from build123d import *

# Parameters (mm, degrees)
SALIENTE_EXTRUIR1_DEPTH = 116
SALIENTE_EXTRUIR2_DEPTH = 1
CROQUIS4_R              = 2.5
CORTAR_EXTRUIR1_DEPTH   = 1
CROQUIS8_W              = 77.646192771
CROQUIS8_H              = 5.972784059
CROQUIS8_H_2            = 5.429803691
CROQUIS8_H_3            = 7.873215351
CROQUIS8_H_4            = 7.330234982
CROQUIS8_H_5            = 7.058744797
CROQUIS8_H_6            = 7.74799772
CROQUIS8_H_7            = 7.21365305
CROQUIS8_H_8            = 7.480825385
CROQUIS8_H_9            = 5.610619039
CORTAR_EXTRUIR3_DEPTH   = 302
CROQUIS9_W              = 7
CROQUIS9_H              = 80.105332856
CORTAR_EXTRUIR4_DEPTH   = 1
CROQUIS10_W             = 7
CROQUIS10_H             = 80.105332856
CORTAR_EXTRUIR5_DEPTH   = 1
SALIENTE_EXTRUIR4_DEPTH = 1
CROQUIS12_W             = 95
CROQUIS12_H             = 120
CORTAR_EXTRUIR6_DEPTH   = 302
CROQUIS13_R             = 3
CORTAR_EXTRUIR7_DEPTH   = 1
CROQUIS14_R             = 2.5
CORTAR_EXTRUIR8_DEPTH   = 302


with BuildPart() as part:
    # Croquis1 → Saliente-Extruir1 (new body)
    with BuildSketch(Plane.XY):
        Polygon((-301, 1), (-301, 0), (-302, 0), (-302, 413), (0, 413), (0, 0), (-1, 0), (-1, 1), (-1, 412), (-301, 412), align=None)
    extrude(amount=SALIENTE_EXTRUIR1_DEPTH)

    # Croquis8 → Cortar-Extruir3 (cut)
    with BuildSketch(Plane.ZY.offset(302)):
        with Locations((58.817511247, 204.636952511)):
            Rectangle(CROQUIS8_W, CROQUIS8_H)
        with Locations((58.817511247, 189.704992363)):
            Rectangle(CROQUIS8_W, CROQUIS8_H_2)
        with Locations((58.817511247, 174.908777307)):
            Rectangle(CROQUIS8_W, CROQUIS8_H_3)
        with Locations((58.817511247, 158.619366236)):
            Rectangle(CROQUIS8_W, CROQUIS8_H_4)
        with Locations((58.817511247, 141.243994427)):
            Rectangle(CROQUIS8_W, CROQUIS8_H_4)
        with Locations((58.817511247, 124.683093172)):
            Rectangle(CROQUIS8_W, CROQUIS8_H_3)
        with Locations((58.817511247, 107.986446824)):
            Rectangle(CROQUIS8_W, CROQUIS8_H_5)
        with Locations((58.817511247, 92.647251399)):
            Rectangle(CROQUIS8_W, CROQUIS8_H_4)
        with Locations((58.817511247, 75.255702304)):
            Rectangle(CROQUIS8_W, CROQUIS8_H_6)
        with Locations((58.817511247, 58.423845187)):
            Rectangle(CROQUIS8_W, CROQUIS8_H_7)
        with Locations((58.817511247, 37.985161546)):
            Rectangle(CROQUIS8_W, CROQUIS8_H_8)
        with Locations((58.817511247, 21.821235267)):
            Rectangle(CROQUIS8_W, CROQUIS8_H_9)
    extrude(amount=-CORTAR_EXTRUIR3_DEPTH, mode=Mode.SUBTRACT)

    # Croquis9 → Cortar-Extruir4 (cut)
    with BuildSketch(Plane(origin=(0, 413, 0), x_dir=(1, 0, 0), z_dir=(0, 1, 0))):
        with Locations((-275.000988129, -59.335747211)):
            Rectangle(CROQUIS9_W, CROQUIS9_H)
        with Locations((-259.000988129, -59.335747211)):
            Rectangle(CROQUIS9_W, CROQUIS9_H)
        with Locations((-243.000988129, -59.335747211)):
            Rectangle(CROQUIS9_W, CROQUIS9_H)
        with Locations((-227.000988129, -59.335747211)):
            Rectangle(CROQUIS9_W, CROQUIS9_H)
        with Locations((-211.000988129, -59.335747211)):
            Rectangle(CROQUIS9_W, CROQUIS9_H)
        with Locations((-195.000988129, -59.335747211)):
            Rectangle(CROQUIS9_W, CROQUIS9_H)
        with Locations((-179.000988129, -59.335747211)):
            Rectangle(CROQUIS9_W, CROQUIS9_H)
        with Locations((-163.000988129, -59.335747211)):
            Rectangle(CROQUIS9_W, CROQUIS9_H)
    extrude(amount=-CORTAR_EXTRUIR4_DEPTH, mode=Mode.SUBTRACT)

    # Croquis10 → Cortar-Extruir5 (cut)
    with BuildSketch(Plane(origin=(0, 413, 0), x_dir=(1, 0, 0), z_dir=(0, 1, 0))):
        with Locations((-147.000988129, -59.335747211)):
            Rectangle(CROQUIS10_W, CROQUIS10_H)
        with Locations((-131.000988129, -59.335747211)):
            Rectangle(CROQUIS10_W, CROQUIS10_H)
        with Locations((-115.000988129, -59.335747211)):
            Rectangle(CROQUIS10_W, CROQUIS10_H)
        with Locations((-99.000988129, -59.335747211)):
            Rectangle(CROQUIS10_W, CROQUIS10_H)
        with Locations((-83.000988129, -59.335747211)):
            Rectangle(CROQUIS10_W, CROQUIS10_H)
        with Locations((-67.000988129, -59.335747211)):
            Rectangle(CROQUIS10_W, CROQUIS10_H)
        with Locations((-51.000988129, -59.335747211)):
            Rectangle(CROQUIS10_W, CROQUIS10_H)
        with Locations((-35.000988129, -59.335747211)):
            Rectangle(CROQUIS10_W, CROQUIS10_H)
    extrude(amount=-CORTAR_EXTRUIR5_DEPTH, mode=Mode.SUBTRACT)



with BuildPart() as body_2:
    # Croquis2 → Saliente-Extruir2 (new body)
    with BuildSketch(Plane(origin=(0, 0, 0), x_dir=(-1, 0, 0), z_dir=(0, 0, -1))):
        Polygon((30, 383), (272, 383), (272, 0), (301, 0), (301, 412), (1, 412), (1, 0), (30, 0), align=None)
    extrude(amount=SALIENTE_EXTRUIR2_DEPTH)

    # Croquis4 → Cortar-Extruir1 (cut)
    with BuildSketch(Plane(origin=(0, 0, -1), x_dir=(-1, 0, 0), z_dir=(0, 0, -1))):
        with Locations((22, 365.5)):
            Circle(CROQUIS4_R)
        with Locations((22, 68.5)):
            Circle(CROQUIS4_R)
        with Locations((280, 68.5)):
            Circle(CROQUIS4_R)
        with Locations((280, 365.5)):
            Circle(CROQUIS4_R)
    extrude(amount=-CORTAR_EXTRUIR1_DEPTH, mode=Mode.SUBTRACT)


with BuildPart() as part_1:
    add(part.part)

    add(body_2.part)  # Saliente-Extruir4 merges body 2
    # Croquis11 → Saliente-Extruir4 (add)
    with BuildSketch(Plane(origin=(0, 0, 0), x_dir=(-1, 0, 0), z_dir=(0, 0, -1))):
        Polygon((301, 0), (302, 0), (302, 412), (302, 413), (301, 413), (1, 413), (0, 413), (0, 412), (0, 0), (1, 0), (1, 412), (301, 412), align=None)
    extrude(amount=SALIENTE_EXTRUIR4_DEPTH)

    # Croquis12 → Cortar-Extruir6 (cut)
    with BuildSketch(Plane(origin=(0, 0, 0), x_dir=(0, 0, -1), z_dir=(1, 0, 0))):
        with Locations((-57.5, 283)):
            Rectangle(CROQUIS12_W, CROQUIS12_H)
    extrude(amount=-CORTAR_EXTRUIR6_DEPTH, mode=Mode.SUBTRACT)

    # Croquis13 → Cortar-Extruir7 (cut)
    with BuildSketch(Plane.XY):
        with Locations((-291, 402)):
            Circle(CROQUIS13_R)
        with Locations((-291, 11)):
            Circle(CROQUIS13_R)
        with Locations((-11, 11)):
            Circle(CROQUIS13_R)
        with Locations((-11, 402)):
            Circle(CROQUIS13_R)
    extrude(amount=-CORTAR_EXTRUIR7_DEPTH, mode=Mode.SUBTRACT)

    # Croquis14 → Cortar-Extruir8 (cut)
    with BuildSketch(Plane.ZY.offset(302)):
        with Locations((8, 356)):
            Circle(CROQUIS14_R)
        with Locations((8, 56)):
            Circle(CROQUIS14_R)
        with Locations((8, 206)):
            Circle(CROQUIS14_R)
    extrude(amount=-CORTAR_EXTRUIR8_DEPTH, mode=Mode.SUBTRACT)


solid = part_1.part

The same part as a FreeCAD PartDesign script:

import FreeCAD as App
import Part
import Sketcher
from FreeCAD import Vector

doc = App.newDocument("Part")
body = doc.addObject("PartDesign::Body", "Body")

# Sketch on XY plane
sketch1 = doc.addObject("Sketcher::SketchObject", "Sketch")
body.addObject(sketch1)
sketch1.AttachmentSupport = (doc.XY_Plane, [""])
sketch1.MapMode = "FlatFace"
sketch1.addGeometry([
    Part.LineSegment(Vector(-301, 0, 0), Vector(-301, 412, 0)),  # 0
    Part.LineSegment(Vector(-301, 412, 0), Vector(-1, 412, 0)),  # 1
    Part.LineSegment(Vector(-1, 412, 0), Vector(-1, 0, 0)),  # 2
    Part.LineSegment(Vector(-1, 0, 0), Vector(0, 0, 0)),  # 3
    Part.LineSegment(Vector(0, 0, 0), Vector(0, 413, 0)),  # 4
    Part.LineSegment(Vector(0, 413, 0), Vector(-302, 413, 0)),  # 5
    Part.LineSegment(Vector(-302, 413, 0), Vector(-302, 0, 0)),  # 6
    Part.LineSegment(Vector(-302, 0, 0), Vector(-301, 0, 0)),  # 7
], False)
sketch1.addConstraint([
    Sketcher.Constraint("Coincident", 0, 2, 1, 1),
    Sketcher.Constraint("Coincident", 1, 2, 2, 1),
    Sketcher.Constraint("Coincident", 2, 2, 3, 1),
    Sketcher.Constraint("Coincident", 3, 2, 4, 1),
    Sketcher.Constraint("Coincident", 4, 2, 5, 1),
    Sketcher.Constraint("Coincident", 5, 2, 6, 1),
    Sketcher.Constraint("Coincident", 6, 2, 7, 1),
    Sketcher.Constraint("Coincident", 7, 2, 0, 1),
    Sketcher.Constraint("Vertical", 0),
    Sketcher.Constraint("Horizontal", 1),
    Sketcher.Constraint("Vertical", 2),
    Sketcher.Constraint("Horizontal", 3),
    Sketcher.Constraint("Vertical", 4),
    Sketcher.Constraint("Horizontal", 5),
    Sketcher.Constraint("Vertical", 6),
    Sketcher.Constraint("Horizontal", 7),
    Sketcher.Constraint("Coincident", 3, 2, -1, 1),
    Sketcher.Constraint("PointOnObject", 6, 2, -1),
    Sketcher.Constraint("Equal", 3, 7),
    Sketcher.Constraint("DistanceX", 1, 1, 1, 2, 300.0),
    Sketcher.Constraint("DistanceX", 3, 1, 3, 2, 1.0),
    Sketcher.Constraint("DistanceY", 0, 1, 0, 2, 412.0),
    Sketcher.Constraint("DistanceY", 4, 1, 4, 2, 413.0),
])
pad1 = doc.addObject("PartDesign::Pad", "Pad")
body.addObject(pad1)
pad1.Profile = sketch1
pad1.Length = 116

# Sketch on YZ plane
sketch2 = doc.addObject("Sketcher::SketchObject", "Sketch001")
body.addObject(sketch2)
sketch2.AttachmentSupport = (doc.YZ_Plane, [""])
sketch2.MapMode = "FlatFace"
sketch2.AttachmentOffset = App.Placement(Vector(0, 0, -302), App.Rotation())
sketch2.addGeometry([
    Part.LineSegment(Vector(207.623345, 19.994415, 0), Vector(201.65056, 19.994415, 0)),  # 0
    Part.LineSegment(Vector(201.65056, 19.994415, 0), Vector(201.65056, 97.640608, 0)),  # 1
    Part.LineSegment(Vector(201.65056, 97.640608, 0), Vector(207.623345, 97.640608, 0)),  # 2
    Part.LineSegment(Vector(207.623345, 97.640608, 0), Vector(207.623345, 19.994415, 0)),  # 3
    Part.LineSegment(Vector(192.419894, 19.994415, 0), Vector(186.990091, 19.994415, 0)),  # 4
    Part.LineSegment(Vector(186.990091, 19.994415, 0), Vector(186.990091, 97.640608, 0)),  # 5
    Part.LineSegment(Vector(186.990091, 97.640608, 0), Vector(192.419894, 97.640608, 0)),  # 6
    Part.LineSegment(Vector(192.419894, 97.640608, 0), Vector(192.419894, 19.994415, 0)),  # 7
    Part.LineSegment(Vector(178.845385, 19.994415, 0), Vector(170.97217, 19.994415, 0)),  # 8
    Part.LineSegment(Vector(170.97217, 19.994415, 0), Vector(170.97217, 97.640608, 0)),  # 9
    Part.LineSegment(Vector(170.97217, 97.640608, 0), Vector(178.845385, 97.640608, 0)),  # 10
    Part.LineSegment(Vector(178.845385, 97.640608, 0), Vector(178.845385, 19.994415, 0)),  # 11
    Part.LineSegment(Vector(162.284484, 19.994415, 0), Vector(154.954249, 19.994415, 0)),  # 12
    Part.LineSegment(Vector(154.954249, 19.994415, 0), Vector(154.954249, 97.640608, 0)),  # 13
    Part.LineSegment(Vector(154.954249, 97.640608, 0), Vector(162.284484, 97.640608, 0)),  # 14
    Part.LineSegment(Vector(162.284484, 97.640608, 0), Vector(162.284484, 19.994415, 0)),  # 15
    Part.LineSegment(Vector(144.909112, 19.994415, 0), Vector(137.578877, 19.994415, 0)),  # 16
    Part.LineSegment(Vector(137.578877, 19.994415, 0), Vector(137.578877, 97.640608, 0)),  # 17
    Part.LineSegment(Vector(137.578877, 97.640608, 0), Vector(144.909112, 97.640608, 0)),  # 18
    Part.LineSegment(Vector(144.909112, 97.640608, 0), Vector(144.909112, 19.994415, 0)),  # 19
    Part.LineSegment(Vector(128.619701, 19.994415, 0), Vector(120.746485, 19.994415, 0)),  # 20
    Part.LineSegment(Vector(120.746485, 19.994415, 0), Vector(120.746485, 97.640608, 0)),  # 21
    Part.LineSegment(Vector(120.746485, 97.640608, 0), Vector(128.619701, 97.640608, 0)),  # 22
    Part.LineSegment(Vector(128.619701, 97.640608, 0), Vector(128.619701, 19.994415, 0)),  # 23
    Part.LineSegment(Vector(111.515819, 19.994415, 0), Vector(104.457074, 19.994415, 0)),  # 24
    Part.LineSegment(Vector(104.457074, 19.994415, 0), Vector(104.457074, 97.640608, 0)),  # 25
    Part.LineSegment(Vector(104.457074, 97.640608, 0), Vector(111.515819, 97.640608, 0)),  # 26
    Part.LineSegment(Vector(111.515819, 97.640608, 0), Vector(111.515819, 19.994415, 0)),  # 27
    Part.LineSegment(Vector(96.312369, 19.994415, 0), Vector(88.982134, 19.994415, 0)),  # 28
    Part.LineSegment(Vector(88.982134, 19.994415, 0), Vector(88.982134, 97.640608, 0)),  # 29
    Part.LineSegment(Vector(88.982134, 97.640608, 0), Vector(96.312369, 97.640608, 0)),  # 30
    Part.LineSegment(Vector(96.312369, 97.640608, 0), Vector(96.312369, 19.994415, 0)),  # 31
    Part.LineSegment(Vector(79.129701, 19.994415, 0), Vector(71.381703, 19.994415, 0)),  # 32
    Part.LineSegment(Vector(71.381703, 19.994415, 0), Vector(71.381703, 97.640608, 0)),  # 33
    Part.LineSegment(Vector(71.381703, 97.640608, 0), Vector(79.129701, 97.640608, 0)),  # 34
    Part.LineSegment(Vector(79.129701, 97.640608, 0), Vector(79.129701, 19.994415, 0)),  # 35
    Part.LineSegment(Vector(62.030672, 19.994415, 0), Vector(54.817019, 19.994415, 0)),  # 36
    Part.LineSegment(Vector(54.817019, 19.994415, 0), Vector(54.817019, 97.640608, 0)),  # 37
    Part.LineSegment(Vector(54.817019, 97.640608, 0), Vector(62.030672, 97.640608, 0)),  # 38
    Part.LineSegment(Vector(62.030672, 97.640608, 0), Vector(62.030672, 19.994415, 0)),  # 39
    Part.LineSegment(Vector(41.725574, 19.994415, 0), Vector(34.244749, 19.994415, 0)),  # 40
    Part.LineSegment(Vector(34.244749, 19.994415, 0), Vector(34.244749, 97.640608, 0)),  # 41
    Part.LineSegment(Vector(34.244749, 97.640608, 0), Vector(41.725574, 97.640608, 0)),  # 42
    Part.LineSegment(Vector(41.725574, 97.640608, 0), Vector(41.725574, 19.994415, 0)),  # 43
    Part.LineSegment(Vector(24.626545, 19.994415, 0), Vector(19.015926, 19.994415, 0)),  # 44
    Part.LineSegment(Vector(19.015926, 19.994415, 0), Vector(19.015926, 97.640608, 0)),  # 45
    Part.LineSegment(Vector(19.015926, 97.640608, 0), Vector(24.626545, 97.640608, 0)),  # 46
    Part.LineSegment(Vector(24.626545, 97.640608, 0), Vector(24.626545, 19.994415, 0)),  # 47
], False)
sketch2.addConstraint([
    Sketcher.Constraint("Coincident", 0, 2, 1, 1),
    Sketcher.Constraint("Coincident", 1, 2, 2, 1),
    Sketcher.Constraint("Coincident", 2, 2, 3, 1),
    Sketcher.Constraint("Coincident", 3, 2, 0, 1),
    Sketcher.Constraint("Coincident", 4, 2, 5, 1),
    Sketcher.Constraint("Coincident", 5, 2, 6, 1),
    Sketcher.Constraint("Coincident", 6, 2, 7, 1),
    Sketcher.Constraint("Coincident", 7, 2, 4, 1),
    Sketcher.Constraint("Coincident", 8, 2, 9, 1),
    Sketcher.Constraint("Coincident", 9, 2, 10, 1),
    Sketcher.Constraint("Coincident", 10, 2, 11, 1),
    Sketcher.Constraint("Coincident", 11, 2, 8, 1),
    Sketcher.Constraint("Coincident", 12, 2, 13, 1),
    Sketcher.Constraint("Coincident", 13, 2, 14, 1),
    Sketcher.Constraint("Coincident", 14, 2, 15, 1),
    Sketcher.Constraint("Coincident", 15, 2, 12, 1),
    Sketcher.Constraint("Coincident", 16, 2, 17, 1),
    Sketcher.Constraint("Coincident", 17, 2, 18, 1),
    Sketcher.Constraint("Coincident", 18, 2, 19, 1),
    Sketcher.Constraint("Coincident", 19, 2, 16, 1),
    Sketcher.Constraint("Coincident", 20, 2, 21, 1),
    Sketcher.Constraint("Coincident", 21, 2, 22, 1),
    Sketcher.Constraint("Coincident", 22, 2, 23, 1),
    Sketcher.Constraint("Coincident", 23, 2, 20, 1),
    Sketcher.Constraint("Coincident", 24, 2, 25, 1),
    Sketcher.Constraint("Coincident", 25, 2, 26, 1),
    Sketcher.Constraint("Coincident", 26, 2, 27, 1),
    Sketcher.Constraint("Coincident", 27, 2, 24, 1),
    Sketcher.Constraint("Coincident", 28, 2, 29, 1),
    Sketcher.Constraint("Coincident", 29, 2, 30, 1),
    Sketcher.Constraint("Coincident", 30, 2, 31, 1),
    Sketcher.Constraint("Coincident", 31, 2, 28, 1),
    Sketcher.Constraint("Coincident", 32, 2, 33, 1),
    Sketcher.Constraint("Coincident", 33, 2, 34, 1),
    Sketcher.Constraint("Coincident", 34, 2, 35, 1),
    Sketcher.Constraint("Coincident", 35, 2, 32, 1),
    Sketcher.Constraint("Coincident", 36, 2, 37, 1),
    Sketcher.Constraint("Coincident", 37, 2, 38, 1),
    Sketcher.Constraint("Coincident", 38, 2, 39, 1),
    Sketcher.Constraint("Coincident", 39, 2, 36, 1),
    Sketcher.Constraint("Coincident", 40, 2, 41, 1),
    Sketcher.Constraint("Coincident", 41, 2, 42, 1),
    Sketcher.Constraint("Coincident", 42, 2, 43, 1),
    Sketcher.Constraint("Coincident", 43, 2, 40, 1),
    Sketcher.Constraint("Coincident", 44, 2, 45, 1),
    Sketcher.Constraint("Coincident", 45, 2, 46, 1),
    Sketcher.Constraint("Coincident", 46, 2, 47, 1),
    Sketcher.Constraint("Coincident", 47, 2, 44, 1),
    Sketcher.Constraint("Horizontal", 0),
    Sketcher.Constraint("Vertical", 1),
    Sketcher.Constraint("Horizontal", 2),
    Sketcher.Constraint("Vertical", 3),
    Sketcher.Constraint("Horizontal", 4),
    Sketcher.Constraint("Vertical", 5),
    Sketcher.Constraint("Horizontal", 6),
    Sketcher.Constraint("Vertical", 7),
    Sketcher.Constraint("Horizontal", 8),
    Sketcher.Constraint("Vertical", 9),
    Sketcher.Constraint("Horizontal", 10),
    Sketcher.Constraint("Vertical", 11),
    Sketcher.Constraint("Horizontal", 12),
    Sketcher.Constraint("Vertical", 13),
    Sketcher.Constraint("Horizontal", 14),
    Sketcher.Constraint("Vertical", 15),
    Sketcher.Constraint("Horizontal", 16),
    Sketcher.Constraint("Vertical", 17),
    Sketcher.Constraint("Horizontal", 18),
    Sketcher.Constraint("Vertical", 19),
    Sketcher.Constraint("Horizontal", 20),
    Sketcher.Constraint("Vertical", 21),
    Sketcher.Constraint("Horizontal", 22),
    Sketcher.Constraint("Vertical", 23),
    Sketcher.Constraint("Horizontal", 24),
    Sketcher.Constraint("Vertical", 25),
    Sketcher.Constraint("Horizontal", 26),
    Sketcher.Constraint("Vertical", 27),
    Sketcher.Constraint("Horizontal", 28),
    Sketcher.Constraint("Vertical", 29),
    Sketcher.Constraint("Horizontal", 30),
    Sketcher.Constraint("Vertical", 31),
    Sketcher.Constraint("Horizontal", 32),
    Sketcher.Constraint("Vertical", 33),
    Sketcher.Constraint("Horizontal", 34),
    Sketcher.Constraint("Vertical", 35),
    Sketcher.Constraint("Horizontal", 36),
    Sketcher.Constraint("Vertical", 37),
    Sketcher.Constraint("Horizontal", 38),
    Sketcher.Constraint("Vertical", 39),
    Sketcher.Constraint("Horizontal", 40),
    Sketcher.Constraint("Vertical", 41),
    Sketcher.Constraint("Horizontal", 42),
    Sketcher.Constraint("Vertical", 43),
    Sketcher.Constraint("Horizontal", 44),
    Sketcher.Constraint("Vertical", 45),
    Sketcher.Constraint("Horizontal", 46),
    Sketcher.Constraint("Vertical", 47),
    Sketcher.Constraint("Horizontal", 3, 2, 4, 2),
    Sketcher.Constraint("Horizontal", 2, 2, 5, 2),
    Sketcher.Constraint("Horizontal", 7, 2, 8, 2),
    Sketcher.Constraint("Horizontal", 6, 2, 9, 2),
    Sketcher.Constraint("Horizontal", 11, 2, 12, 2),
    Sketcher.Constraint("Horizontal", 10, 2, 13, 2),
    Sketcher.Constraint("Horizontal", 15, 2, 16, 2),
    Sketcher.Constraint("Horizontal", 14, 2, 17, 2),
    Sketcher.Constraint("Horizontal", 19, 2, 20, 2),
    Sketcher.Constraint("Horizontal", 18, 2, 21, 2),
    Sketcher.Constraint("Horizontal", 23, 2, 24, 2),
    Sketcher.Constraint("Horizontal", 22, 2, 25, 2),
    Sketcher.Constraint("Horizontal", 27, 2, 28, 2),
    Sketcher.Constraint("Horizontal", 26, 2, 29, 2),
    Sketcher.Constraint("Horizontal", 31, 2, 32, 2),
    Sketcher.Constraint("Horizontal", 30, 2, 33, 2),
    Sketcher.Constraint("Horizontal", 35, 2, 36, 2),
    Sketcher.Constraint("Horizontal", 34, 2, 37, 2),
    Sketcher.Constraint("Horizontal", 39, 2, 40, 2),
    Sketcher.Constraint("Horizontal", 38, 2, 41, 2),
    Sketcher.Constraint("Horizontal", 43, 2, 44, 2),
    Sketcher.Constraint("Horizontal", 42, 2, 45, 2),
    Sketcher.Constraint("Equal", 14, 16),
    Sketcher.Constraint("Equal", 10, 20),
    Sketcher.Constraint("Equal", 18, 28),
    Sketcher.Constraint("DistanceX", 20, 2, 15, 2, 41.537998),
    Sketcher.Constraint("DistanceX", 44, 2, 44, 1, 5.610619),
    Sketcher.Constraint("DistanceX", -1, 1, 22, 2, 128.619701),
    Sketcher.Constraint("DistanceX", -1, 1, 34, 2, 79.129701),
    Sketcher.Constraint("DistanceX", 14, 2, 10, 2, 16.560901),
    Sketcher.Constraint("DistanceX", 0, 2, 0, 1, 5.972784),
    Sketcher.Constraint("DistanceX", 4, 2, 4, 1, 5.429804),
    Sketcher.Constraint("DistanceX", 8, 2, 8, 1, 7.873215),
    Sketcher.Constraint("DistanceX", 12, 2, 12, 1, 7.330235),
    Sketcher.Constraint("DistanceX", 24, 2, 24, 1, 7.058745),
    Sketcher.Constraint("DistanceX", 32, 2, 32, 1, 7.747998),
    Sketcher.Constraint("DistanceX", 36, 2, 36, 1, 7.213653),
    Sketcher.Constraint("DistanceX", 40, 2, 40, 1, 7.480825),
    Sketcher.Constraint("DistanceY", 1, 1, 1, 2, 77.646193),
    Sketcher.Constraint("DistanceX", -1, 1, 0, 2, 201.65056),
    Sketcher.Constraint("DistanceX", -1, 1, 4, 2, 186.990091),
    Sketcher.Constraint("DistanceX", -1, 1, 18, 2, 144.909112),
    Sketcher.Constraint("DistanceX", -1, 1, 26, 2, 111.515819),
    Sketcher.Constraint("DistanceX", -1, 1, 30, 2, 96.312369),
    Sketcher.Constraint("DistanceX", -1, 1, 36, 2, 54.817019),
    Sketcher.Constraint("DistanceX", -1, 1, 40, 2, 34.244749),
    Sketcher.Constraint("DistanceX", 44, 2, 43, 2, 22.709648),
    Sketcher.Constraint("DistanceY", -1, 1, 0, 2, 19.994415),
])
pocket1 = doc.addObject("PartDesign::Pocket", "Pocket")
body.addObject(pocket1)
pocket1.Profile = sketch2
pocket1.Length = 302
pocket1.Reversed = True

# Sketch on XZ plane
sketch3 = doc.addObject("Sketcher::SketchObject", "Sketch002")
body.addObject(sketch3)
sketch3.AttachmentSupport = (doc.XZ_Plane, [""])
sketch3.MapMode = "FlatFace"
sketch3.AttachmentOffset = App.Placement(Vector(0, 0, -413), App.Rotation())
sketch3.addGeometry([
    Part.LineSegment(Vector(-278.500988, 19.283081, 0), Vector(-278.500988, 99.388414, 0)),  # 0
    Part.LineSegment(Vector(-278.500988, 99.388414, 0), Vector(-271.500988, 99.388414, 0)),  # 1
    Part.LineSegment(Vector(-271.500988, 99.388414, 0), Vector(-271.500988, 19.283081, 0)),  # 2
    Part.LineSegment(Vector(-271.500988, 19.283081, 0), Vector(-278.500988, 19.283081, 0)),  # 3
    Part.LineSegment(Vector(-262.500988, 19.283081, 0), Vector(-262.500988, 99.388414, 0)),  # 4
    Part.LineSegment(Vector(-262.500988, 99.388414, 0), Vector(-255.500988, 99.388414, 0)),  # 5
    Part.LineSegment(Vector(-255.500988, 99.388414, 0), Vector(-255.500988, 19.283081, 0)),  # 6
    Part.LineSegment(Vector(-255.500988, 19.283081, 0), Vector(-262.500988, 19.283081, 0)),  # 7
    Part.LineSegment(Vector(-246.500988, 19.283081, 0), Vector(-246.500988, 99.388414, 0)),  # 8
    Part.LineSegment(Vector(-246.500988, 99.388414, 0), Vector(-239.500988, 99.388414, 0)),  # 9
    Part.LineSegment(Vector(-239.500988, 99.388414, 0), Vector(-239.500988, 19.283081, 0)),  # 10
    Part.LineSegment(Vector(-239.500988, 19.283081, 0), Vector(-246.500988, 19.283081, 0)),  # 11
    Part.LineSegment(Vector(-230.500988, 19.283081, 0), Vector(-230.500988, 99.388414, 0)),  # 12
    Part.LineSegment(Vector(-230.500988, 99.388414, 0), Vector(-223.500988, 99.388414, 0)),  # 13
    Part.LineSegment(Vector(-223.500988, 99.388414, 0), Vector(-223.500988, 19.283081, 0)),  # 14
    Part.LineSegment(Vector(-223.500988, 19.283081, 0), Vector(-230.500988, 19.283081, 0)),  # 15
    Part.LineSegment(Vector(-214.500988, 19.283081, 0), Vector(-214.500988, 99.388414, 0)),  # 16
    Part.LineSegment(Vector(-214.500988, 99.388414, 0), Vector(-207.500988, 99.388414, 0)),  # 17
    Part.LineSegment(Vector(-207.500988, 99.388414, 0), Vector(-207.500988, 19.283081, 0)),  # 18
    Part.LineSegment(Vector(-207.500988, 19.283081, 0), Vector(-214.500988, 19.283081, 0)),  # 19
    Part.LineSegment(Vector(-198.500988, 19.283081, 0), Vector(-198.500988, 99.388414, 0)),  # 20
    Part.LineSegment(Vector(-198.500988, 99.388414, 0), Vector(-191.500988, 99.388414, 0)),  # 21
    Part.LineSegment(Vector(-191.500988, 99.388414, 0), Vector(-191.500988, 19.283081, 0)),  # 22
    Part.LineSegment(Vector(-191.500988, 19.283081, 0), Vector(-198.500988, 19.283081, 0)),  # 23
    Part.LineSegment(Vector(-182.500988, 19.283081, 0), Vector(-182.500988, 99.388414, 0)),  # 24
    Part.LineSegment(Vector(-182.500988, 99.388414, 0), Vector(-175.500988, 99.388414, 0)),  # 25
    Part.LineSegment(Vector(-175.500988, 99.388414, 0), Vector(-175.500988, 19.283081, 0)),  # 26
    Part.LineSegment(Vector(-175.500988, 19.283081, 0), Vector(-182.500988, 19.283081, 0)),  # 27
    Part.LineSegment(Vector(-166.500988, 19.283081, 0), Vector(-166.500988, 99.388414, 0)),  # 28
    Part.LineSegment(Vector(-166.500988, 99.388414, 0), Vector(-159.500988, 99.388414, 0)),  # 29
    Part.LineSegment(Vector(-159.500988, 99.388414, 0), Vector(-159.500988, 19.283081, 0)),  # 30
    Part.LineSegment(Vector(-159.500988, 19.283081, 0), Vector(-166.500988, 19.283081, 0)),  # 31
], False)
sketch3.addConstraint([
    Sketcher.Constraint("Coincident", 0, 2, 1, 1),
    Sketcher.Constraint("Coincident", 1, 2, 2, 1),
    Sketcher.Constraint("Coincident", 2, 2, 3, 1),
    Sketcher.Constraint("Coincident", 3, 2, 0, 1),
    Sketcher.Constraint("Coincident", 4, 2, 5, 1),
    Sketcher.Constraint("Coincident", 5, 2, 6, 1),
    Sketcher.Constraint("Coincident", 6, 2, 7, 1),
    Sketcher.Constraint("Coincident", 7, 2, 4, 1),
    Sketcher.Constraint("Coincident", 8, 2, 9, 1),
    Sketcher.Constraint("Coincident", 9, 2, 10, 1),
    Sketcher.Constraint("Coincident", 10, 2, 11, 1),
    Sketcher.Constraint("Coincident", 11, 2, 8, 1),
    Sketcher.Constraint("Coincident", 12, 2, 13, 1),
    Sketcher.Constraint("Coincident", 13, 2, 14, 1),
    Sketcher.Constraint("Coincident", 14, 2, 15, 1),
    Sketcher.Constraint("Coincident", 15, 2, 12, 1),
    Sketcher.Constraint("Coincident", 16, 2, 17, 1),
    Sketcher.Constraint("Coincident", 17, 2, 18, 1),
    Sketcher.Constraint("Coincident", 18, 2, 19, 1),
    Sketcher.Constraint("Coincident", 19, 2, 16, 1),
    Sketcher.Constraint("Coincident", 20, 2, 21, 1),
    Sketcher.Constraint("Coincident", 21, 2, 22, 1),
    Sketcher.Constraint("Coincident", 22, 2, 23, 1),
    Sketcher.Constraint("Coincident", 23, 2, 20, 1),
    Sketcher.Constraint("Coincident", 24, 2, 25, 1),
    Sketcher.Constraint("Coincident", 25, 2, 26, 1),
    Sketcher.Constraint("Coincident", 26, 2, 27, 1),
    Sketcher.Constraint("Coincident", 27, 2, 24, 1),
    Sketcher.Constraint("Coincident", 28, 2, 29, 1),
    Sketcher.Constraint("Coincident", 29, 2, 30, 1),
    Sketcher.Constraint("Coincident", 30, 2, 31, 1),
    Sketcher.Constraint("Coincident", 31, 2, 28, 1),
    Sketcher.Constraint("Vertical", 0),
    Sketcher.Constraint("Horizontal", 1),
    Sketcher.Constraint("Vertical", 2),
    Sketcher.Constraint("Horizontal", 3),
    Sketcher.Constraint("Vertical", 4),
    Sketcher.Constraint("Horizontal", 5),
    Sketcher.Constraint("Vertical", 6),
    Sketcher.Constraint("Horizontal", 7),
    Sketcher.Constraint("Vertical", 8),
    Sketcher.Constraint("Horizontal", 9),
    Sketcher.Constraint("Vertical", 10),
    Sketcher.Constraint("Horizontal", 11),
    Sketcher.Constraint("Vertical", 12),
    Sketcher.Constraint("Horizontal", 13),
    Sketcher.Constraint("Vertical", 14),
    Sketcher.Constraint("Horizontal", 15),
    Sketcher.Constraint("Vertical", 16),
    Sketcher.Constraint("Horizontal", 17),
    Sketcher.Constraint("Vertical", 18),
    Sketcher.Constraint("Horizontal", 19),
    Sketcher.Constraint("Vertical", 20),
    Sketcher.Constraint("Horizontal", 21),
    Sketcher.Constraint("Vertical", 22),
    Sketcher.Constraint("Horizontal", 23),
    Sketcher.Constraint("Vertical", 24),
    Sketcher.Constraint("Horizontal", 25),
    Sketcher.Constraint("Vertical", 26),
    Sketcher.Constraint("Horizontal", 27),
    Sketcher.Constraint("Vertical", 28),
    Sketcher.Constraint("Horizontal", 29),
    Sketcher.Constraint("Vertical", 30),
    Sketcher.Constraint("Horizontal", 31),
    Sketcher.Constraint("Horizontal", 1, 2, 4, 2),
    Sketcher.Constraint("Horizontal", 3, 2, 6, 2),
    Sketcher.Constraint("Horizontal", 5, 2, 8, 2),
    Sketcher.Constraint("Horizontal", 7, 2, 10, 2),
    Sketcher.Constraint("Horizontal", 9, 2, 12, 2),
    Sketcher.Constraint("Horizontal", 11, 2, 14, 2),
    Sketcher.Constraint("Horizontal", 13, 2, 16, 2),
    Sketcher.Constraint("Horizontal", 15, 2, 18, 2),
    Sketcher.Constraint("Horizontal", 17, 2, 20, 2),
    Sketcher.Constraint("Horizontal", 19, 2, 22, 2),
    Sketcher.Constraint("Horizontal", 21, 2, 24, 2),
    Sketcher.Constraint("Horizontal", 23, 2, 26, 2),
    Sketcher.Constraint("Horizontal", 25, 2, 28, 2),
    Sketcher.Constraint("Horizontal", 27, 2, 30, 2),
    Sketcher.Constraint("Equal", 3, 5),
    Sketcher.Constraint("Equal", 7, 9),
    Sketcher.Constraint("Equal", 11, 13),
    Sketcher.Constraint("Equal", 15, 17),
    Sketcher.Constraint("Equal", 19, 21),
    Sketcher.Constraint("Equal", 23, 25),
    Sketcher.Constraint("Equal", 27, 29),
    Sketcher.Constraint("DistanceX", 1, 1, 1, 2, 7.0),
    Sketcher.Constraint("DistanceX", 1, 2, 4, 2, 9.0),
    Sketcher.Constraint("DistanceX", 5, 2, 8, 2, 9.0),
    Sketcher.Constraint("DistanceX", 9, 2, 12, 2, 9.0),
    Sketcher.Constraint("DistanceX", 13, 2, 16, 2, 9.0),
    Sketcher.Constraint("DistanceX", 17, 2, 20, 2, 9.0),
    Sketcher.Constraint("DistanceX", 21, 2, 24, 2, 9.0),
    Sketcher.Constraint("DistanceX", 25, 2, 28, 2, 9.0),
    Sketcher.Constraint("DistanceY", 0, 1, 0, 2, 80.105333),
    Sketcher.Constraint("DistanceX", 0, 2, -1, 1, 278.500988),
    Sketcher.Constraint("DistanceY", -1, 1, 2, 2, 19.283081),
])
pocket2 = doc.addObject("PartDesign::Pocket", "Pocket001")
body.addObject(pocket2)
pocket2.Profile = sketch3
pocket2.Length = 1
pocket2.Reversed = True

# Sketch on XZ plane
sketch4 = doc.addObject("Sketcher::SketchObject", "Sketch003")
body.addObject(sketch4)
sketch4.AttachmentSupport = (doc.XZ_Plane, [""])
sketch4.MapMode = "FlatFace"
sketch4.AttachmentOffset = App.Placement(Vector(0, 0, -413), App.Rotation())
sketch4.addGeometry([
    Part.LineSegment(Vector(-150.500988, 19.283081, 0), Vector(-150.500988, 99.388414, 0)),  # 0
    Part.LineSegment(Vector(-150.500988, 99.388414, 0), Vector(-143.500988, 99.388414, 0)),  # 1
    Part.LineSegment(Vector(-143.500988, 99.388414, 0), Vector(-143.500988, 19.283081, 0)),  # 2
    Part.LineSegment(Vector(-143.500988, 19.283081, 0), Vector(-150.500988, 19.283081, 0)),  # 3
    Part.LineSegment(Vector(-134.500988, 19.283081, 0), Vector(-134.500988, 99.388414, 0)),  # 4
    Part.LineSegment(Vector(-134.500988, 99.388414, 0), Vector(-127.500988, 99.388414, 0)),  # 5
    Part.LineSegment(Vector(-127.500988, 99.388414, 0), Vector(-127.500988, 19.283081, 0)),  # 6
    Part.LineSegment(Vector(-127.500988, 19.283081, 0), Vector(-134.500988, 19.283081, 0)),  # 7
    Part.LineSegment(Vector(-118.500988, 19.283081, 0), Vector(-118.500988, 99.388414, 0)),  # 8
    Part.LineSegment(Vector(-118.500988, 99.388414, 0), Vector(-111.500988, 99.388414, 0)),  # 9
    Part.LineSegment(Vector(-111.500988, 99.388414, 0), Vector(-111.500988, 19.283081, 0)),  # 10
    Part.LineSegment(Vector(-111.500988, 19.283081, 0), Vector(-118.500988, 19.283081, 0)),  # 11
    Part.LineSegment(Vector(-102.500988, 19.283081, 0), Vector(-102.500988, 99.388414, 0)),  # 12
    Part.LineSegment(Vector(-102.500988, 99.388414, 0), Vector(-95.500988, 99.388414, 0)),  # 13
    Part.LineSegment(Vector(-95.500988, 99.388414, 0), Vector(-95.500988, 19.283081, 0)),  # 14
    Part.LineSegment(Vector(-95.500988, 19.283081, 0), Vector(-102.500988, 19.283081, 0)),  # 15
    Part.LineSegment(Vector(-86.500988, 19.283081, 0), Vector(-86.500988, 99.388414, 0)),  # 16
    Part.LineSegment(Vector(-86.500988, 99.388414, 0), Vector(-79.500988, 99.388414, 0)),  # 17
    Part.LineSegment(Vector(-79.500988, 99.388414, 0), Vector(-79.500988, 19.283081, 0)),  # 18
    Part.LineSegment(Vector(-79.500988, 19.283081, 0), Vector(-86.500988, 19.283081, 0)),  # 19
    Part.LineSegment(Vector(-70.500988, 19.283081, 0), Vector(-70.500988, 99.388414, 0)),  # 20
    Part.LineSegment(Vector(-70.500988, 99.388414, 0), Vector(-63.500988, 99.388414, 0)),  # 21
    Part.LineSegment(Vector(-63.500988, 99.388414, 0), Vector(-63.500988, 19.283081, 0)),  # 22
    Part.LineSegment(Vector(-63.500988, 19.283081, 0), Vector(-70.500988, 19.283081, 0)),  # 23
    Part.LineSegment(Vector(-54.500988, 19.283081, 0), Vector(-54.500988, 99.388414, 0)),  # 24
    Part.LineSegment(Vector(-54.500988, 99.388414, 0), Vector(-47.500988, 99.388414, 0)),  # 25
    Part.LineSegment(Vector(-47.500988, 99.388414, 0), Vector(-47.500988, 19.283081, 0)),  # 26
    Part.LineSegment(Vector(-47.500988, 19.283081, 0), Vector(-54.500988, 19.283081, 0)),  # 27
    Part.LineSegment(Vector(-38.500988, 19.283081, 0), Vector(-38.500988, 99.388414, 0)),  # 28
    Part.LineSegment(Vector(-38.500988, 99.388414, 0), Vector(-31.500988, 99.388414, 0)),  # 29
    Part.LineSegment(Vector(-31.500988, 99.388414, 0), Vector(-31.500988, 19.283081, 0)),  # 30
    Part.LineSegment(Vector(-31.500988, 19.283081, 0), Vector(-38.500988, 19.283081, 0)),  # 31
], False)
sketch4.addConstraint([
    Sketcher.Constraint("Coincident", 0, 2, 1, 1),
    Sketcher.Constraint("Coincident", 1, 2, 2, 1),
    Sketcher.Constraint("Coincident", 2, 2, 3, 1),
    Sketcher.Constraint("Coincident", 3, 2, 0, 1),
    Sketcher.Constraint("Coincident", 4, 2, 5, 1),
    Sketcher.Constraint("Coincident", 5, 2, 6, 1),
    Sketcher.Constraint("Coincident", 6, 2, 7, 1),
    Sketcher.Constraint("Coincident", 7, 2, 4, 1),
    Sketcher.Constraint("Coincident", 8, 2, 9, 1),
    Sketcher.Constraint("Coincident", 9, 2, 10, 1),
    Sketcher.Constraint("Coincident", 10, 2, 11, 1),
    Sketcher.Constraint("Coincident", 11, 2, 8, 1),
    Sketcher.Constraint("Coincident", 12, 2, 13, 1),
    Sketcher.Constraint("Coincident", 13, 2, 14, 1),
    Sketcher.Constraint("Coincident", 14, 2, 15, 1),
    Sketcher.Constraint("Coincident", 15, 2, 12, 1),
    Sketcher.Constraint("Coincident", 16, 2, 17, 1),
    Sketcher.Constraint("Coincident", 17, 2, 18, 1),
    Sketcher.Constraint("Coincident", 18, 2, 19, 1),
    Sketcher.Constraint("Coincident", 19, 2, 16, 1),
    Sketcher.Constraint("Coincident", 20, 2, 21, 1),
    Sketcher.Constraint("Coincident", 21, 2, 22, 1),
    Sketcher.Constraint("Coincident", 22, 2, 23, 1),
    Sketcher.Constraint("Coincident", 23, 2, 20, 1),
    Sketcher.Constraint("Coincident", 24, 2, 25, 1),
    Sketcher.Constraint("Coincident", 25, 2, 26, 1),
    Sketcher.Constraint("Coincident", 26, 2, 27, 1),
    Sketcher.Constraint("Coincident", 27, 2, 24, 1),
    Sketcher.Constraint("Coincident", 28, 2, 29, 1),
    Sketcher.Constraint("Coincident", 29, 2, 30, 1),
    Sketcher.Constraint("Coincident", 30, 2, 31, 1),
    Sketcher.Constraint("Coincident", 31, 2, 28, 1),
    Sketcher.Constraint("Vertical", 0),
    Sketcher.Constraint("Horizontal", 1),
    Sketcher.Constraint("Vertical", 2),
    Sketcher.Constraint("Horizontal", 3),
    Sketcher.Constraint("Vertical", 4),
    Sketcher.Constraint("Horizontal", 5),
    Sketcher.Constraint("Vertical", 6),
    Sketcher.Constraint("Horizontal", 7),
    Sketcher.Constraint("Vertical", 8),
    Sketcher.Constraint("Horizontal", 9),
    Sketcher.Constraint("Vertical", 10),
    Sketcher.Constraint("Horizontal", 11),
    Sketcher.Constraint("Vertical", 12),
    Sketcher.Constraint("Horizontal", 13),
    Sketcher.Constraint("Vertical", 14),
    Sketcher.Constraint("Horizontal", 15),
    Sketcher.Constraint("Vertical", 16),
    Sketcher.Constraint("Horizontal", 17),
    Sketcher.Constraint("Vertical", 18),
    Sketcher.Constraint("Horizontal", 19),
    Sketcher.Constraint("Vertical", 20),
    Sketcher.Constraint("Horizontal", 21),
    Sketcher.Constraint("Vertical", 22),
    Sketcher.Constraint("Horizontal", 23),
    Sketcher.Constraint("Vertical", 24),
    Sketcher.Constraint("Horizontal", 25),
    Sketcher.Constraint("Vertical", 26),
    Sketcher.Constraint("Horizontal", 27),
    Sketcher.Constraint("Vertical", 28),
    Sketcher.Constraint("Horizontal", 29),
    Sketcher.Constraint("Vertical", 30),
    Sketcher.Constraint("Horizontal", 31),
    Sketcher.Constraint("Horizontal", 1, 2, 4, 2),
    Sketcher.Constraint("Horizontal", 3, 2, 6, 2),
    Sketcher.Constraint("Horizontal", 5, 2, 8, 2),
    Sketcher.Constraint("Horizontal", 7, 2, 10, 2),
    Sketcher.Constraint("Horizontal", 9, 2, 12, 2),
    Sketcher.Constraint("Horizontal", 11, 2, 14, 2),
    Sketcher.Constraint("Horizontal", 13, 2, 16, 2),
    Sketcher.Constraint("Horizontal", 15, 2, 18, 2),
    Sketcher.Constraint("Horizontal", 17, 2, 20, 2),
    Sketcher.Constraint("Horizontal", 19, 2, 22, 2),
    Sketcher.Constraint("Horizontal", 21, 2, 24, 2),
    Sketcher.Constraint("Horizontal", 23, 2, 26, 2),
    Sketcher.Constraint("Horizontal", 25, 2, 28, 2),
    Sketcher.Constraint("Horizontal", 27, 2, 30, 2),
    Sketcher.Constraint("Equal", 3, 5),
    Sketcher.Constraint("Equal", 7, 9),
    Sketcher.Constraint("Equal", 11, 13),
    Sketcher.Constraint("Equal", 15, 17),
    Sketcher.Constraint("Equal", 19, 21),
    Sketcher.Constraint("Equal", 23, 25),
    Sketcher.Constraint("Equal", 27, 29),
    Sketcher.Constraint("DistanceX", 1, 1, 1, 2, 7.0),
    Sketcher.Constraint("DistanceX", 1, 2, 4, 2, 9.0),
    Sketcher.Constraint("DistanceX", 5, 2, 8, 2, 9.0),
    Sketcher.Constraint("DistanceX", 9, 2, 12, 2, 9.0),
    Sketcher.Constraint("DistanceX", 13, 2, 16, 2, 9.0),
    Sketcher.Constraint("DistanceX", 17, 2, 20, 2, 9.0),
    Sketcher.Constraint("DistanceX", 21, 2, 24, 2, 9.0),
    Sketcher.Constraint("DistanceX", 25, 2, 28, 2, 9.0),
    Sketcher.Constraint("DistanceY", 0, 1, 0, 2, 80.105333),
    Sketcher.Constraint("DistanceX", 0, 2, -1, 1, 150.500988),
    Sketcher.Constraint("DistanceY", -1, 1, 2, 2, 19.283081),
])
pocket3 = doc.addObject("PartDesign::Pocket", "Pocket002")
body.addObject(pocket3)
pocket3.Profile = sketch4
pocket3.Length = 1
pocket3.Reversed = True
body2 = doc.addObject("PartDesign::Body", "Body001")

# Sketch on XY plane
sketch5 = doc.addObject("Sketcher::SketchObject", "Sketch004")
body2.addObject(sketch5)
sketch5.AttachmentSupport = (doc.getObject("XY_Plane001"), [""])
sketch5.MapMode = "FlatFace"
sketch5.addGeometry([
    Part.LineSegment(Vector(-30, 383, 0), Vector(-272, 383, 0)),  # 0
    Part.LineSegment(Vector(-272, 383, 0), Vector(-272, 0, 0)),  # 1
    Part.LineSegment(Vector(-272, 0, 0), Vector(-301, 0, 0)),  # 2
    Part.LineSegment(Vector(-301, 0, 0), Vector(-301, 412, 0)),  # 3
    Part.LineSegment(Vector(-301, 412, 0), Vector(-1, 412, 0)),  # 4
    Part.LineSegment(Vector(-1, 412, 0), Vector(-1, 0, 0)),  # 5
    Part.LineSegment(Vector(-1, 0, 0), Vector(-30, 0, 0)),  # 6
    Part.LineSegment(Vector(-30, 0, 0), Vector(-30, 383, 0)),  # 7
], False)
sketch5.addConstraint([
    Sketcher.Constraint("Coincident", 0, 2, 1, 1),
    Sketcher.Constraint("Coincident", 1, 2, 2, 1),
    Sketcher.Constraint("Coincident", 2, 2, 3, 1),
    Sketcher.Constraint("Coincident", 3, 2, 4, 1),
    Sketcher.Constraint("Coincident", 4, 2, 5, 1),
    Sketcher.Constraint("Coincident", 5, 2, 6, 1),
    Sketcher.Constraint("Coincident", 6, 2, 7, 1),
    Sketcher.Constraint("Coincident", 7, 2, 0, 1),
    Sketcher.Constraint("Horizontal", 0),
    Sketcher.Constraint("Vertical", 1),
    Sketcher.Constraint("Horizontal", 2),
    Sketcher.Constraint("Vertical", 3),
    Sketcher.Constraint("Horizontal", 4),
    Sketcher.Constraint("Vertical", 5),
    Sketcher.Constraint("Horizontal", 6),
    Sketcher.Constraint("Vertical", 7),
    Sketcher.Constraint("PointOnObject", 1, 2, -1),
    Sketcher.Constraint("PointOnObject", 5, 2, -1),
    Sketcher.Constraint("Equal", 2, 6),
    Sketcher.Constraint("DistanceX", 0, 2, 0, 1, 242.0),
    Sketcher.Constraint("DistanceX", 2, 2, 2, 1, 29.0),
    Sketcher.Constraint("DistanceY", 1, 2, 1, 1, 383.0),
    Sketcher.Constraint("DistanceY", 3, 1, 3, 2, 412.0),
    Sketcher.Constraint("DistanceX", 0, 2, -1, 1, 272.0),
])
pad2 = doc.addObject("PartDesign::Pad", "Pad001")
body2.addObject(pad2)
pad2.Profile = sketch5
pad2.Length = 1
pad2.Reversed = True

# Sketch on XY plane
sketch6 = doc.addObject("Sketcher::SketchObject", "Sketch005")
body2.addObject(sketch6)
sketch6.AttachmentSupport = (doc.getObject("XY_Plane001"), [""])
sketch6.MapMode = "FlatFace"
sketch6.AttachmentOffset = App.Placement(Vector(0, 0, -1), App.Rotation())
sketch6.addGeometry([
    Part.Circle(Vector(-22, 365.5, 0), Vector(0, 0, 1), 2.5),
    Part.Circle(Vector(-22, 68.5, 0), Vector(0, 0, 1), 2.5),
    Part.Circle(Vector(-280, 68.5, 0), Vector(0, 0, 1), 2.5),
    Part.Circle(Vector(-280, 365.5, 0), Vector(0, 0, 1), 2.5),
], False)
sketch6.addConstraint([
    Sketcher.Constraint("Equal", 0, 1),
    Sketcher.Constraint("Equal", 1, 2),
    Sketcher.Constraint("Equal", 2, 3),
    Sketcher.Constraint("Horizontal", 1, 3, 2, 3),
    Sketcher.Constraint("Horizontal", 0, 3, 3, 3),
    Sketcher.Constraint("Vertical", 0, 3, 1, 3),
    Sketcher.Constraint("Vertical", 2, 3, 3, 3),
    Sketcher.Constraint("Diameter", 0, 5.0),
    Sketcher.Constraint("DistanceX", 0, 3, -1, 1, 22.0),
    Sketcher.Constraint("DistanceX", 2, 3, -1, 1, 280.0),
    Sketcher.Constraint("DistanceY", 1, 3, 0, 3, 297.0),
    Sketcher.Constraint("DistanceY", -1, 1, 0, 3, 365.5),
])
pocket4 = doc.addObject("PartDesign::Pocket", "Pocket003")
body2.addObject(pocket4)
pocket4.Profile = sketch6
pocket4.Length = 1
pocket4.Reversed = True
body.AllowCompound = True
doc.recompute()

boolean = doc.addObject("PartDesign::Boolean", "Boolean")
body.addObject(boolean)
boolean.Type = "Fuse"
boolean.addObjects([body2])

# Sketch on XY plane
sketch7 = doc.addObject("Sketcher::SketchObject", "Sketch006")
body.addObject(sketch7)
sketch7.AttachmentSupport = (doc.XY_Plane, [""])
sketch7.MapMode = "FlatFace"
sketch7.addGeometry([
    Part.LineSegment(Vector(-301, 0, 0), Vector(-302, 0, 0)),  # 0
    Part.LineSegment(Vector(-302, 0, 0), Vector(-302, 413, 0)),  # 1
    Part.LineSegment(Vector(-302, 413, 0), Vector(0, 413, 0)),  # 2
    Part.LineSegment(Vector(0, 413, 0), Vector(0, 0, 0)),  # 3
    Part.LineSegment(Vector(0, 0, 0), Vector(-1, 0, 0)),  # 4
    Part.LineSegment(Vector(-1, 0, 0), Vector(-1, 412, 0)),  # 5
    Part.LineSegment(Vector(-1, 412, 0), Vector(-301, 412, 0)),  # 6
    Part.LineSegment(Vector(-301, 412, 0), Vector(-301, 0, 0)),  # 7
], False)
sketch7.addConstraint([
    Sketcher.Constraint("Coincident", 0, 2, 1, 1),
    Sketcher.Constraint("Coincident", 1, 2, 2, 1),
    Sketcher.Constraint("Coincident", 2, 2, 3, 1),
    Sketcher.Constraint("Coincident", 3, 2, 4, 1),
    Sketcher.Constraint("Coincident", 4, 2, 5, 1),
    Sketcher.Constraint("Coincident", 5, 2, 6, 1),
    Sketcher.Constraint("Coincident", 6, 2, 7, 1),
    Sketcher.Constraint("Coincident", 7, 2, 0, 1),
    Sketcher.Constraint("Horizontal", 0),
    Sketcher.Constraint("Vertical", 1),
    Sketcher.Constraint("Horizontal", 2),
    Sketcher.Constraint("Vertical", 3),
    Sketcher.Constraint("Horizontal", 4),
    Sketcher.Constraint("Vertical", 5),
    Sketcher.Constraint("Horizontal", 6),
    Sketcher.Constraint("Vertical", 7),
    Sketcher.Constraint("Coincident", 3, 2, -1, 1),
    Sketcher.Constraint("PointOnObject", 0, 2, -1),
    Sketcher.Constraint("Equal", 0, 4),
    Sketcher.Constraint("DistanceX", 0, 2, 0, 1, 1.0),
    Sketcher.Constraint("DistanceX", 2, 1, 2, 2, 302.0),
    Sketcher.Constraint("DistanceY", 1, 1, 1, 2, 413.0),
    Sketcher.Constraint("DistanceY", 5, 1, 5, 2, 412.0),
])
pad3 = doc.addObject("PartDesign::Pad", "Pad002")
body.addObject(pad3)
pad3.Profile = sketch7
pad3.Length = 1
pad3.Reversed = True

# Sketch on YZ plane
sketch8 = doc.addObject("Sketcher::SketchObject", "Sketch007")
body.addObject(sketch8)
sketch8.AttachmentSupport = (doc.YZ_Plane, [""])
sketch8.MapMode = "FlatFace"
sketch8.addGeometry([
    Part.LineSegment(Vector(343, 105, 0), Vector(223, 105, 0)),
    Part.LineSegment(Vector(223, 105, 0), Vector(223, 10, 0)),
    Part.LineSegment(Vector(223, 10, 0), Vector(343, 10, 0)),
    Part.LineSegment(Vector(343, 10, 0), Vector(343, 105, 0)),
], False)
sketch8.addConstraint([
    Sketcher.Constraint("Coincident", 0, 2, 1, 1),
    Sketcher.Constraint("Coincident", 1, 2, 2, 1),
    Sketcher.Constraint("Coincident", 2, 2, 3, 1),
    Sketcher.Constraint("Coincident", 3, 2, 0, 1),
    Sketcher.Constraint("Horizontal", 0),
    Sketcher.Constraint("Vertical", 1),
    Sketcher.Constraint("Horizontal", 2),
    Sketcher.Constraint("Vertical", 3),
    Sketcher.Constraint("DistanceX", 0, 2, 0, 1, 120.0),
    Sketcher.Constraint("DistanceY", 1, 2, 1, 1, 95.0),
    Sketcher.Constraint("DistanceX", -1, 1, 0, 2, 223.0),
    Sketcher.Constraint("DistanceY", -1, 1, 0, 2, 105.0),
])
pocket5 = doc.addObject("PartDesign::Pocket", "Pocket004")
body.addObject(pocket5)
pocket5.Profile = sketch8
pocket5.Length = 302

# Sketch on XY plane
sketch9 = doc.addObject("Sketcher::SketchObject", "Sketch008")
body.addObject(sketch9)
sketch9.AttachmentSupport = (doc.XY_Plane, [""])
sketch9.MapMode = "FlatFace"
sketch9.addGeometry([
    Part.Circle(Vector(-291, 402, 0), Vector(0, 0, 1), 3),
    Part.Circle(Vector(-291, 11, 0), Vector(0, 0, 1), 3),
    Part.Circle(Vector(-11, 11, 0), Vector(0, 0, 1), 3),
    Part.Circle(Vector(-11, 402, 0), Vector(0, 0, 1), 3),
], False)
sketch9.addConstraint([
    Sketcher.Constraint("Equal", 0, 1),
    Sketcher.Constraint("Equal", 1, 2),
    Sketcher.Constraint("Equal", 2, 3),
    Sketcher.Constraint("Horizontal", 1, 3, 2, 3),
    Sketcher.Constraint("Horizontal", 0, 3, 3, 3),
    Sketcher.Constraint("Vertical", 0, 3, 1, 3),
    Sketcher.Constraint("Vertical", 2, 3, 3, 3),
    Sketcher.Constraint("Diameter", 0, 6.0),
    Sketcher.Constraint("DistanceX", 0, 3, -1, 1, 291.0),
    Sketcher.Constraint("DistanceY", -1, 1, 0, 3, 402.0),
    Sketcher.Constraint("DistanceY", -1, 1, 1, 3, 11.0),
    Sketcher.Constraint("DistanceX", 2, 3, -1, 1, 11.0),
])
pocket6 = doc.addObject("PartDesign::Pocket", "Pocket005")
body.addObject(pocket6)
pocket6.Profile = sketch9
pocket6.Length = 1

# Sketch on YZ plane
sketch10 = doc.addObject("Sketcher::SketchObject", "Sketch009")
body.addObject(sketch10)
sketch10.AttachmentSupport = (doc.YZ_Plane, [""])
sketch10.MapMode = "FlatFace"
sketch10.AttachmentOffset = App.Placement(Vector(0, 0, -302), App.Rotation())
sketch10.addGeometry([
    Part.Circle(Vector(356, 8, 0), Vector(0, 0, 1), 2.5),
    Part.Circle(Vector(56, 8, 0), Vector(0, 0, 1), 2.5),
    Part.Circle(Vector(206, 8, 0), Vector(0, 0, 1), 2.5),
], False)
sketch10.addConstraint([
    Sketcher.Constraint("Equal", 0, 1),
    Sketcher.Constraint("Equal", 1, 2),
    Sketcher.Constraint("Horizontal", 0, 3, 1, 3),
    Sketcher.Constraint("Horizontal", 1, 3, 2, 3),
    Sketcher.Constraint("Diameter", 0, 5.0),
    Sketcher.Constraint("DistanceX", -1, 1, 0, 3, 356.0),
    Sketcher.Constraint("DistanceY", -1, 1, 0, 3, 8.0),
    Sketcher.Constraint("DistanceX", -1, 1, 1, 3, 56.0),
    Sketcher.Constraint("DistanceX", -1, 1, 2, 3, 206.0),
])
pocket7 = doc.addObject("PartDesign::Pocket", "Pocket006")
body.addObject(pocket7)
pocket7.Profile = sketch10
pocket7.Length = 302
pocket7.Reversed = True

doc.recompute()
